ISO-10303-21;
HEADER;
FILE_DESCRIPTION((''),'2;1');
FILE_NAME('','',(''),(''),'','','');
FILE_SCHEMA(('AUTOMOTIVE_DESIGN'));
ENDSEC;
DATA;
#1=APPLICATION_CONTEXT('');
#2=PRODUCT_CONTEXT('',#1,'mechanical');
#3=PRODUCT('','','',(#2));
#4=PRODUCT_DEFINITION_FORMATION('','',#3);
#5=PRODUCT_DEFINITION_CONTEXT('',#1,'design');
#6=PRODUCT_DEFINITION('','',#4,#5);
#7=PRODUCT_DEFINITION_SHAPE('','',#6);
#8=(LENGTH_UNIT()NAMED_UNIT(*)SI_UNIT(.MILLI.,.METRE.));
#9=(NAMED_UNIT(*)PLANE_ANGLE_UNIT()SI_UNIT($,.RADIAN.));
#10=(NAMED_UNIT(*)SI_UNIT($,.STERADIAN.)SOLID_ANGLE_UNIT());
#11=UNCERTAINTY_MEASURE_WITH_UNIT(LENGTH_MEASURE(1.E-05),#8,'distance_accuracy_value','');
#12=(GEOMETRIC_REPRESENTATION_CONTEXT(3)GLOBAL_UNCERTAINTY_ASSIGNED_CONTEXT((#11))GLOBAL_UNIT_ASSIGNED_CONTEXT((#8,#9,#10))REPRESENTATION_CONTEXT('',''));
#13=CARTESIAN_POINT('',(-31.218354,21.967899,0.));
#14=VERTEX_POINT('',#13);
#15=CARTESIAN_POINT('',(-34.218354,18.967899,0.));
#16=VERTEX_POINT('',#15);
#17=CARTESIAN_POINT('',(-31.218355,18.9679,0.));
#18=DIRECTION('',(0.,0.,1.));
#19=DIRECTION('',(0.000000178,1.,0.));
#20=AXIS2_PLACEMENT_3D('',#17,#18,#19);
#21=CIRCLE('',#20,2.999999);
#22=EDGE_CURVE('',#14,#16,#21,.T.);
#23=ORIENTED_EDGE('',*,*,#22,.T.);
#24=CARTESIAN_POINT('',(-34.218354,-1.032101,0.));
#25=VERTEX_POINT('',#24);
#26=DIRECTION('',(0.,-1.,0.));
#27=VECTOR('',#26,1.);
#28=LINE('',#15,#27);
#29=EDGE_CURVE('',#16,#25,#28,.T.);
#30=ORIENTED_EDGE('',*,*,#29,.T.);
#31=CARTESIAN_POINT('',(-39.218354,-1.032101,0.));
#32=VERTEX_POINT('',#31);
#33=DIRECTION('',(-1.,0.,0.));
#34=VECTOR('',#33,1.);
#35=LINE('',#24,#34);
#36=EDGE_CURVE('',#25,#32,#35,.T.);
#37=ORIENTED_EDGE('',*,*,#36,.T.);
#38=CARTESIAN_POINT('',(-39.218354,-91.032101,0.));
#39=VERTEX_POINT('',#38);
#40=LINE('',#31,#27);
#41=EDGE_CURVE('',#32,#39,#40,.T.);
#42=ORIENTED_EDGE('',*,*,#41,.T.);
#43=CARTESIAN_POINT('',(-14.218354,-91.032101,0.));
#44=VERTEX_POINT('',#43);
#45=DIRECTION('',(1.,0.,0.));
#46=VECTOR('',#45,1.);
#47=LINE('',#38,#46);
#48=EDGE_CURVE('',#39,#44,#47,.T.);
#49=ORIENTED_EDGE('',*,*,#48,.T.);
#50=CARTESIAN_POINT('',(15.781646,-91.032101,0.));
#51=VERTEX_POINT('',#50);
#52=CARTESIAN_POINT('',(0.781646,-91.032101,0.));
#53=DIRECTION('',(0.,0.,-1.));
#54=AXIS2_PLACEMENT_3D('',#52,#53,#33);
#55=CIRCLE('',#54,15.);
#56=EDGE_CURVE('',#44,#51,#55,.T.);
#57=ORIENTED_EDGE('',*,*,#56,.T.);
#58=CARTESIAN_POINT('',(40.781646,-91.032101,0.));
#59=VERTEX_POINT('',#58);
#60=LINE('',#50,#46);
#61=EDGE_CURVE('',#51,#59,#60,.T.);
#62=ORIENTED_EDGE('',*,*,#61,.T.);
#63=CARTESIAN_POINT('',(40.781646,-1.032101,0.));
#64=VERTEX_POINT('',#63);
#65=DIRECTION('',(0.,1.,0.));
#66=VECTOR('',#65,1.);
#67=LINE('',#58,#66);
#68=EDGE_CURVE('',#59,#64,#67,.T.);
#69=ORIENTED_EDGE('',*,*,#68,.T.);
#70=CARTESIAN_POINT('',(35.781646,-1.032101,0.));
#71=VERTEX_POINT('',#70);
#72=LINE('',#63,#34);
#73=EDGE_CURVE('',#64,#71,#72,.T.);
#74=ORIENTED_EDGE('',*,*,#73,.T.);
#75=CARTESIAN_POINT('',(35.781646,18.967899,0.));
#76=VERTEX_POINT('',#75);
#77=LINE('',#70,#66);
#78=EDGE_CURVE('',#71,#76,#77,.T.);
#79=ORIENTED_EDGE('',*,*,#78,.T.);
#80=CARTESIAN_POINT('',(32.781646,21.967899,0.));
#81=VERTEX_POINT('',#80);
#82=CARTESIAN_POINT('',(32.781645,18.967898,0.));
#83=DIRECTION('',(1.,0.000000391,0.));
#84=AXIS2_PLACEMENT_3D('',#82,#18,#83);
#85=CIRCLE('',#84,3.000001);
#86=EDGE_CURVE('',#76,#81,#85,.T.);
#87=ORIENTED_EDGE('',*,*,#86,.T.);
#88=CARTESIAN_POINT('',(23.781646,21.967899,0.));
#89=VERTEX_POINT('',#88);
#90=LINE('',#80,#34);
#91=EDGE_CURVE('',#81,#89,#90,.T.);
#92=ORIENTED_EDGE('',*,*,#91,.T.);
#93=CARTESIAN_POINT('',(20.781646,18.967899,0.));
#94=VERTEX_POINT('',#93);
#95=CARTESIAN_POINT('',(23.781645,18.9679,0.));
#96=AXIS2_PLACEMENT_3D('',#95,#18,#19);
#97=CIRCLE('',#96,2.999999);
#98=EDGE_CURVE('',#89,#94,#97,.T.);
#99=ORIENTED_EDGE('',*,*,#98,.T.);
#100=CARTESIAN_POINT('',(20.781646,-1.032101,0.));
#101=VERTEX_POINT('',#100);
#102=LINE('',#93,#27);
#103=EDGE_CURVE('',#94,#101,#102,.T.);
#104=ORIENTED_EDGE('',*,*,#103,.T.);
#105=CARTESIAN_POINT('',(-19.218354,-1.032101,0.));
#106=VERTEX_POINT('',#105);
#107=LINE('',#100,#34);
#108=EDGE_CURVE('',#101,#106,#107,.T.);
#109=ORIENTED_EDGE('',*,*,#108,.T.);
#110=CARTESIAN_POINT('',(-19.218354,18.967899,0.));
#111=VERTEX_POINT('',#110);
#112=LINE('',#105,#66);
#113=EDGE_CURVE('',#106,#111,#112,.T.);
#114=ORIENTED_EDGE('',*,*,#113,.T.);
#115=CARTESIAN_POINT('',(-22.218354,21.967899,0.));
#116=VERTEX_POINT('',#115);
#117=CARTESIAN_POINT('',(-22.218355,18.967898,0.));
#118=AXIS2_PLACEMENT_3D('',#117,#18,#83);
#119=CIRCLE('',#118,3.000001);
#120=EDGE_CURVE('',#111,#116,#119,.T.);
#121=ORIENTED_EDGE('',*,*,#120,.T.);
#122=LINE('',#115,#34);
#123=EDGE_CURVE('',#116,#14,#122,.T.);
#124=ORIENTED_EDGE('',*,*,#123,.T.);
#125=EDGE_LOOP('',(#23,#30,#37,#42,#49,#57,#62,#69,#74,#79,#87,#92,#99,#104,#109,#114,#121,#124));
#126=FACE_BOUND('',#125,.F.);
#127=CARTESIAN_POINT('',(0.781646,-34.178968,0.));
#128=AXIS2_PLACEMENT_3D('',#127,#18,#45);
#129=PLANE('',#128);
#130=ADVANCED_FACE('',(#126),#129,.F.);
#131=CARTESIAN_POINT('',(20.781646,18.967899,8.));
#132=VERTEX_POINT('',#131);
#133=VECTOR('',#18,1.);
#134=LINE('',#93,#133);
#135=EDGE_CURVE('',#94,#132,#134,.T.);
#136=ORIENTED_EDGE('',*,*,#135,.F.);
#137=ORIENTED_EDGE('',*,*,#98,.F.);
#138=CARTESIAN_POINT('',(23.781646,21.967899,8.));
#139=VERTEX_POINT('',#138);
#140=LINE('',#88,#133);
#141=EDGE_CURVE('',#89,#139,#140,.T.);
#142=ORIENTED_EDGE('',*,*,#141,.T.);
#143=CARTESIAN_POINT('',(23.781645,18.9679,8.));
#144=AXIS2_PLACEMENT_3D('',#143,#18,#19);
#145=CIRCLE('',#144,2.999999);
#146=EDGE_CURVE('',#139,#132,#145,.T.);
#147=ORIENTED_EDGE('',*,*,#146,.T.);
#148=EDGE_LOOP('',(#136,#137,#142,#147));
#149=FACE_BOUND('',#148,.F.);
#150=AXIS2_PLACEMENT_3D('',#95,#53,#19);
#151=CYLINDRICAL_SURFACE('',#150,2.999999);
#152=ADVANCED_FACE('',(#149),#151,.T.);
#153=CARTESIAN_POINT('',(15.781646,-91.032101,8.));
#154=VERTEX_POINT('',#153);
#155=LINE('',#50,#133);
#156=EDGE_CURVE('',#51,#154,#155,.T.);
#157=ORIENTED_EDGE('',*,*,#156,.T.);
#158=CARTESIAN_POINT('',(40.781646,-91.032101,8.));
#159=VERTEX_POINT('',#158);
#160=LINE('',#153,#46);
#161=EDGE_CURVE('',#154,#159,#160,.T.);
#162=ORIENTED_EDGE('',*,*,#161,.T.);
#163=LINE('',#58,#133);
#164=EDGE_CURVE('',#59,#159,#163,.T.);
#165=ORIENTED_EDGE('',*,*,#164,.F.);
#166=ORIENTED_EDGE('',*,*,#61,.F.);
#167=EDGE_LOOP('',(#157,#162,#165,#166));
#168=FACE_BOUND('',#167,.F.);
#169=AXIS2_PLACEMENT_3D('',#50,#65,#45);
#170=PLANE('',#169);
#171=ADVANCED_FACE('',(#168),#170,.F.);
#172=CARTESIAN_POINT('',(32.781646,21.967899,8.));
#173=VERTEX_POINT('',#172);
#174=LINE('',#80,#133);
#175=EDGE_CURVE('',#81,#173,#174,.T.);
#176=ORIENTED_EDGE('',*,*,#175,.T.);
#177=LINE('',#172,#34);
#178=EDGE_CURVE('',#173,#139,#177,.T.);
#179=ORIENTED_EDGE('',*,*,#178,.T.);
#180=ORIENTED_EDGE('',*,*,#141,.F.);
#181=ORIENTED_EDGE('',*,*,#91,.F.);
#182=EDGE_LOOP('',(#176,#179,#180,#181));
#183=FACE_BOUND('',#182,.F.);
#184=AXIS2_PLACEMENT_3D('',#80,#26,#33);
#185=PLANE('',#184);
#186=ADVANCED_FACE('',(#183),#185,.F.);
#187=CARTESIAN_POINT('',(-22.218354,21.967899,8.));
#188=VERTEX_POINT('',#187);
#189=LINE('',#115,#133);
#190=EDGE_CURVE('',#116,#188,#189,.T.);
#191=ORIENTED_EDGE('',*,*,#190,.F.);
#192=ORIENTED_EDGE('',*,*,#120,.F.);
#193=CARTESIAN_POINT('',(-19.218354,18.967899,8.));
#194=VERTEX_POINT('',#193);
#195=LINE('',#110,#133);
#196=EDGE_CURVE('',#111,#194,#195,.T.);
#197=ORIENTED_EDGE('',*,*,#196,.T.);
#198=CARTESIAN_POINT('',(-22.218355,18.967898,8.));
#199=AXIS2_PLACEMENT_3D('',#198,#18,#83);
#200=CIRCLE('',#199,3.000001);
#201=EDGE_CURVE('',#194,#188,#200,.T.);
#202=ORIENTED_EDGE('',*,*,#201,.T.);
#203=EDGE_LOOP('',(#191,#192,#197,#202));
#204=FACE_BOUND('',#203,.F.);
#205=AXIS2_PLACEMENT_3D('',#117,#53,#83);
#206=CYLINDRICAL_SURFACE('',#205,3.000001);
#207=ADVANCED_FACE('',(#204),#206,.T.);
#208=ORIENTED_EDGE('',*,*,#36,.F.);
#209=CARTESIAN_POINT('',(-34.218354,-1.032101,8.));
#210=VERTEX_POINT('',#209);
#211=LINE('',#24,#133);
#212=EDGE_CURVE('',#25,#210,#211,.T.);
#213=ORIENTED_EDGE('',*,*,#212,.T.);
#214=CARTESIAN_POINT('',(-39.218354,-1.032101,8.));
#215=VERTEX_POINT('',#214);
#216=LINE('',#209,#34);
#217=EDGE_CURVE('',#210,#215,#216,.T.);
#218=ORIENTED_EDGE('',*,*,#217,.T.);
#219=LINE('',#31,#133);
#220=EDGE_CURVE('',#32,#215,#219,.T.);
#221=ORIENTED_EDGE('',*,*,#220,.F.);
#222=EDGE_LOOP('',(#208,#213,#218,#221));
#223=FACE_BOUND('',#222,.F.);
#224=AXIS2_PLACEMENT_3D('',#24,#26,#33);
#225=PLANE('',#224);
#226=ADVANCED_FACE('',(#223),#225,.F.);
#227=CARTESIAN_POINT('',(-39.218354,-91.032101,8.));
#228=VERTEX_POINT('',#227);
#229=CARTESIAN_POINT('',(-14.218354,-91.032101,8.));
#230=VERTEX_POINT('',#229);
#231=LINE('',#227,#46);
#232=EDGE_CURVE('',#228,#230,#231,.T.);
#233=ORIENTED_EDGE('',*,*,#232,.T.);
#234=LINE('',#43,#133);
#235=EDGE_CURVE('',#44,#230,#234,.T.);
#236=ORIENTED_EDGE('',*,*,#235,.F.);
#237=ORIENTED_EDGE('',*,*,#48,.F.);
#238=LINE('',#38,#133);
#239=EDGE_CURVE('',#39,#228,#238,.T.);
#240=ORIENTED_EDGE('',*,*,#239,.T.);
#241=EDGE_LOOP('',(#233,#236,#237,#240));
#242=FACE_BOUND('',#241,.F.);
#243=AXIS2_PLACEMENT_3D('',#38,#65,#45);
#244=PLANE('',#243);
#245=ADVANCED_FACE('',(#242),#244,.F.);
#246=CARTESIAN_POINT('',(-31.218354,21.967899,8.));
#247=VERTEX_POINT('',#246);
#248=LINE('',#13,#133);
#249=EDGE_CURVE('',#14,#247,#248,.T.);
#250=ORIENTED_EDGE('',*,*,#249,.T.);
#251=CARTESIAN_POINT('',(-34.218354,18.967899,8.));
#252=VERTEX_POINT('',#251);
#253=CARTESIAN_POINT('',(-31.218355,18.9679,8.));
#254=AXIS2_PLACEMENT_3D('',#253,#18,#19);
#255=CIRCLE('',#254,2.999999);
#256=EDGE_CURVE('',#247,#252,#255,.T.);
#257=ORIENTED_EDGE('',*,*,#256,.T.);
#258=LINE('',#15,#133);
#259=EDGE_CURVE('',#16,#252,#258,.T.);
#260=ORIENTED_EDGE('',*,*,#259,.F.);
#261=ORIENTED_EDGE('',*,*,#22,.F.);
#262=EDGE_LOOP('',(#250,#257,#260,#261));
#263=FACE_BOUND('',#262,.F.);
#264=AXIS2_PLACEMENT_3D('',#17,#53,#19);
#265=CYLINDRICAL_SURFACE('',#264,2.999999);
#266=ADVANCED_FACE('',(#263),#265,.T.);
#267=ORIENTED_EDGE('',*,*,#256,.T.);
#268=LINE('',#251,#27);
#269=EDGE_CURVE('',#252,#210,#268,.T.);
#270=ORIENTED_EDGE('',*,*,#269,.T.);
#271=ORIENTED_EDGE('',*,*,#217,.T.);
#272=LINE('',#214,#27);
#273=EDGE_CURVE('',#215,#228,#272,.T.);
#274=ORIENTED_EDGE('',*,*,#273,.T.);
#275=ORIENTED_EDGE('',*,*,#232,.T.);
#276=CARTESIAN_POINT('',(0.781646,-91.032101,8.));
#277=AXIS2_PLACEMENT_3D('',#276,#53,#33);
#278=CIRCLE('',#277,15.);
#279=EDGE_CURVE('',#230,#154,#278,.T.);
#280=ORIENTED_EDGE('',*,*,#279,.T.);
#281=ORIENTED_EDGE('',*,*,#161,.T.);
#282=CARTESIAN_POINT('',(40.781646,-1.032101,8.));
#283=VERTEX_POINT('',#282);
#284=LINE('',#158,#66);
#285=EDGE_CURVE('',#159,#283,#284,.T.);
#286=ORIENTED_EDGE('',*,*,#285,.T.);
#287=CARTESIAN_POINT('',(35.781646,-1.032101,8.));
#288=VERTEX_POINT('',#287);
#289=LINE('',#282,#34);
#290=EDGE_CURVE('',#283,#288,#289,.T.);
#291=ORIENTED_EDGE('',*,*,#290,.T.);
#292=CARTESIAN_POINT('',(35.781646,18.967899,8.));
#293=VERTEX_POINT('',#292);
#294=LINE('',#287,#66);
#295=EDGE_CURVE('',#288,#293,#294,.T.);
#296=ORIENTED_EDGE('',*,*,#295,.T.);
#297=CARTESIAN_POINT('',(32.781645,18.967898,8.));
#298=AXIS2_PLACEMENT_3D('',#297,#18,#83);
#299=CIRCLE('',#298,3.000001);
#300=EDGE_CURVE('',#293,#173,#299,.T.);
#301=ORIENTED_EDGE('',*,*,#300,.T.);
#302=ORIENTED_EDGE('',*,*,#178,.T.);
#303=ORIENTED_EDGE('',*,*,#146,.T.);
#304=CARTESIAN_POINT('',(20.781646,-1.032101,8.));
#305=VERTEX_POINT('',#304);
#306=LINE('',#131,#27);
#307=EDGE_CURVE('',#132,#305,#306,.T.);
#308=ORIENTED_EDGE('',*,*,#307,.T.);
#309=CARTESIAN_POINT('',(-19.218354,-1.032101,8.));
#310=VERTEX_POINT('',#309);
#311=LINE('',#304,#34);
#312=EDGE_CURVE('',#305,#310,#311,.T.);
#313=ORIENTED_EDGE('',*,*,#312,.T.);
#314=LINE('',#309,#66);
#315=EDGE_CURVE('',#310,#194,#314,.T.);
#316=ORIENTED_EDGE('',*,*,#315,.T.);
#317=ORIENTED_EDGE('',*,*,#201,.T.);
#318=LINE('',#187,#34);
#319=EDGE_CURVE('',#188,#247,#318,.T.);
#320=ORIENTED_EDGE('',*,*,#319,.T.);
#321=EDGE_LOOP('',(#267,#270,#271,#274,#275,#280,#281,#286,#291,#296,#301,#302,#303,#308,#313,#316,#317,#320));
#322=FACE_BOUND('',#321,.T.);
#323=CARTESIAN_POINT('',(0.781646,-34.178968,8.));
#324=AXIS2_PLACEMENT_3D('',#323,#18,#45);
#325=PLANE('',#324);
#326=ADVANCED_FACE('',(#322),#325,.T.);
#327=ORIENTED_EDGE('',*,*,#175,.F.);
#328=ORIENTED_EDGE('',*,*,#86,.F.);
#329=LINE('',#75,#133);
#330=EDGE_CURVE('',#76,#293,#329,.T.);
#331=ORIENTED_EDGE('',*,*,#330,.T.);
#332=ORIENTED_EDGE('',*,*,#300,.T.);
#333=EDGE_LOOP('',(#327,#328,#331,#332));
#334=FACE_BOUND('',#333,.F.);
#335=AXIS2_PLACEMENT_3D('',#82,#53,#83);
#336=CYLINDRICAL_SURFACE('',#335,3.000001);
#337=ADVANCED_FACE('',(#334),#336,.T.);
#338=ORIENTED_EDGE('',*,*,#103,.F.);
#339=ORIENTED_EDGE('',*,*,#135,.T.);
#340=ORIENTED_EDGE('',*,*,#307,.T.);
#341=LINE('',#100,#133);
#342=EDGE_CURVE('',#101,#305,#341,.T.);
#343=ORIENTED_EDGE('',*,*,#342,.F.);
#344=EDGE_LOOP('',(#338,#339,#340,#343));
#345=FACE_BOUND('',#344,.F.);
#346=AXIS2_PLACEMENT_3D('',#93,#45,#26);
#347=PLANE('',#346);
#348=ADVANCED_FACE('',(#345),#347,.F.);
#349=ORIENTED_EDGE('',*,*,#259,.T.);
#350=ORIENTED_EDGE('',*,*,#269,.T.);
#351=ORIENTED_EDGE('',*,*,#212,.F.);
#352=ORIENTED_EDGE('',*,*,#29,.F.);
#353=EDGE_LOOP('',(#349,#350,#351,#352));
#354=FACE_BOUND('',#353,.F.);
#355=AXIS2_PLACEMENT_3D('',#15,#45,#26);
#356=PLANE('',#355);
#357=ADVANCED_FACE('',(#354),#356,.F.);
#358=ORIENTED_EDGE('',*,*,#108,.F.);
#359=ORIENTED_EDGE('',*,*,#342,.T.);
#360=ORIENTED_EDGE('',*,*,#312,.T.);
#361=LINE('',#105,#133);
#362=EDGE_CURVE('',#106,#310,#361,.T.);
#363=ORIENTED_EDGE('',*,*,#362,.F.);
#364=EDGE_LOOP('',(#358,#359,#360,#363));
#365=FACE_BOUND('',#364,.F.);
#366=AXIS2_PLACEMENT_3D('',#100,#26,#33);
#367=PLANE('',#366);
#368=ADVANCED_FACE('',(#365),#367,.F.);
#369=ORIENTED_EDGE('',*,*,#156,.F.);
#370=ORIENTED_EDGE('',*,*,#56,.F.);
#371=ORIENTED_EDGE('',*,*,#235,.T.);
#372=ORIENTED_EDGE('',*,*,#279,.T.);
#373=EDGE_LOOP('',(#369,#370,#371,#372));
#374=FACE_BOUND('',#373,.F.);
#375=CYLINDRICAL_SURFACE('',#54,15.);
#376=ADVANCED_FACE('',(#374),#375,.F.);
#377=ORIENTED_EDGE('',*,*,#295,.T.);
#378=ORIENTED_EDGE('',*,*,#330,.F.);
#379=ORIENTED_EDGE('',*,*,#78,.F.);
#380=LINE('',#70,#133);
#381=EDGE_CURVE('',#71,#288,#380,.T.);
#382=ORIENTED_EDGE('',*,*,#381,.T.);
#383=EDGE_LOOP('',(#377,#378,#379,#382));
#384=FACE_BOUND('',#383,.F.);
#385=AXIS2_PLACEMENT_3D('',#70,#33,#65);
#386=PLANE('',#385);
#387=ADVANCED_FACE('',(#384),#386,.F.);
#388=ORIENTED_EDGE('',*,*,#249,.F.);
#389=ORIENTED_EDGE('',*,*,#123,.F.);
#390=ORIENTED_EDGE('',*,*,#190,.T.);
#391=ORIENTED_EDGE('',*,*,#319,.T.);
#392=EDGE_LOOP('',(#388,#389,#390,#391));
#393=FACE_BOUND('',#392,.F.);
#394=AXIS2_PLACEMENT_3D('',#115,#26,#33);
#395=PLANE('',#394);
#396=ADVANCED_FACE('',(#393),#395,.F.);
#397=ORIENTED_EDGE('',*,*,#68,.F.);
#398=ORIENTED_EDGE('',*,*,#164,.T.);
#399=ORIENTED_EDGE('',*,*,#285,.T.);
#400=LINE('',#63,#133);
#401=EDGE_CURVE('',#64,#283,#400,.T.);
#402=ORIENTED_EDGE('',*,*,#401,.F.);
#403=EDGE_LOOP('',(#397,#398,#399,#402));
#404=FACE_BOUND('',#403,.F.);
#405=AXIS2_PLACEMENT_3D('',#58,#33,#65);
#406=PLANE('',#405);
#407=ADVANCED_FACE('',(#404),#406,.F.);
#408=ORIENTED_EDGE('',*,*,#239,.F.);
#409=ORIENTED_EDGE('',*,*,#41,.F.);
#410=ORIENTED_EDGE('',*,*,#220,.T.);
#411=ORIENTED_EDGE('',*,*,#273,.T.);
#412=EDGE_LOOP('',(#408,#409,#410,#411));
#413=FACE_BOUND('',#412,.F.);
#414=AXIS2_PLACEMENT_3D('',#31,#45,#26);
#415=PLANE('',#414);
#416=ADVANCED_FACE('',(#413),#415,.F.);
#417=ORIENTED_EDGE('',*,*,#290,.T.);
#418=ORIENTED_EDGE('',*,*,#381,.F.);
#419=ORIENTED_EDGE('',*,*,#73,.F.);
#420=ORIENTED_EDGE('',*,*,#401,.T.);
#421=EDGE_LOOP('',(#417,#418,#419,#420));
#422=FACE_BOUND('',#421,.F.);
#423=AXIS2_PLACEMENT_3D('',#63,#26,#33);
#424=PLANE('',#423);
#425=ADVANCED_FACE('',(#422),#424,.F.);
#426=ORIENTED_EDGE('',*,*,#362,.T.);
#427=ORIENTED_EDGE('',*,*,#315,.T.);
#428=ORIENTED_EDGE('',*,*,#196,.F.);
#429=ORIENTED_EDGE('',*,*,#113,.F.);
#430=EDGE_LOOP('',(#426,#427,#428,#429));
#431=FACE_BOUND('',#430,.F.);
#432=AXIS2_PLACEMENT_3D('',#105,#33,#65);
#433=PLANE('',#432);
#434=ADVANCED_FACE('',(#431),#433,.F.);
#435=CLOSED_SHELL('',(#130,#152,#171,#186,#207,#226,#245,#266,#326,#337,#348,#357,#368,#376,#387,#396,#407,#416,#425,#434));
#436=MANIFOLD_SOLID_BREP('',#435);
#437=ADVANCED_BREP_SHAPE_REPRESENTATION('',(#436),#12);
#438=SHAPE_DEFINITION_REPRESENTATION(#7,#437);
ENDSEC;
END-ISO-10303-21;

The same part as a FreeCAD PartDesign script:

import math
import FreeCAD as App
import Part
import Sketcher
from FreeCAD import Vector

doc = App.newDocument("Part")
body = doc.addObject("PartDesign::Body", "Body")

# Sketch on XY plane
sketch1 = doc.addObject("Sketcher::SketchObject", "Sketch")
body.addObject(sketch1)
sketch1.AttachmentSupport = (doc.XY_Plane, [""])
sketch1.MapMode = "FlatFace"
sketch1.addGeometry([
    Part.LineSegment(Vector(-34.218354, -1.032101, 0), Vector(-39.218354, -1.032101, 0)),  # 0
    Part.LineSegment(Vector(-39.218354, -1.032101, 0), Vector(-39.218354, -91.032101, 0)),  # 1
    Part.LineSegment(Vector(-39.218354, -91.032101, 0), Vector(-14.218354, -91.032101, 0)),  # 2
    Part.ArcOfCircle(Part.Circle(Vector(0.781646, -91.032101, 0), Vector(0, 0, 1), 15), math.radians(0), math.radians(180)),  # 3
    Part.LineSegment(Vector(15.781646, -91.032101, 0), Vector(40.781646, -91.032101, 0)),  # 4
    Part.LineSegment(Vector(40.781646, -91.032101, 0), Vector(40.781646, -1.032101, 0)),  # 5
    Part.LineSegment(Vector(40.781646, -1.032101, 0), Vector(35.781646, -1.032101, 0)),  # 6
    Part.LineSegment(Vector(35.781646, -1.032101, 0), Vector(35.781646, 18.967899, 0)),  # 7
    Part.ArcOfCircle(Part.Circle(Vector(32.781645, 18.967898, 0), Vector(0, 0, 1), 3.000001), math.radians(0.000022), math.radians(89.999978)),  # 8
    Part.LineSegment(Vector(32.781646, 21.967899, 0), Vector(23.781646, 21.967899, 0)),  # 9
    Part.ArcOfCircle(Part.Circle(Vector(23.781645, 18.9679, 0), Vector(0, 0, 1), 2.999999), math.radians(89.99999), math.radians(180.00001)),  # 10
    Part.LineSegment(Vector(20.781646, 18.967899, 0), Vector(20.781646, -1.032101, 0)),  # 11
    Part.LineSegment(Vector(20.781646, -1.032101, 0), Vector(-19.218354, -1.032101, 0)),  # 12
    Part.LineSegment(Vector(-19.218354, -1.032101, 0), Vector(-19.218354, 18.967899, 0)),  # 13
    Part.ArcOfCircle(Part.Circle(Vector(-22.218355, 18.967898, 0), Vector(0, 0, 1), 3.000001), math.radians(0.000022), math.radians(89.999978)),  # 14
    Part.LineSegment(Vector(-22.218354, 21.967899, 0), Vector(-31.218354, 21.967899, 0)),  # 15
    Part.ArcOfCircle(Part.Circle(Vector(-31.218355, 18.9679, 0), Vector(0, 0, 1), 2.999999), math.radians(89.99999), math.radians(180.00001)),  # 16
    Part.LineSegment(Vector(-34.218354, 18.967899, 0), Vector(-34.218354, -1.032101, 0)),  # 17
], False)
sketch1.addConstraint([
    Sketcher.Constraint("Coincident", 0, 2, 1, 1),
    Sketcher.Constraint("Coincident", 1, 2, 2, 1),
    Sketcher.Constraint("Coincident", 2, 2, 3, 2),
    Sketcher.Constraint("Coincident", 3, 1, 4, 1),
    Sketcher.Constraint("Coincident", 4, 2, 5, 1),
    Sketcher.Constraint("Coincident", 5, 2, 6, 1),
    Sketcher.Constraint("Coincident", 6, 2, 7, 1),
    Sketcher.Constraint("Tangent", 7, 2, 8, 1),
    Sketcher.Constraint("Tangent", 8, 2, 9, 1),
    Sketcher.Constraint("Tangent", 9, 2, 10, 1),
    Sketcher.Constraint("Tangent", 10, 2, 11, 1),
    Sketcher.Constraint("Coincident", 11, 2, 12, 1),
    Sketcher.Constraint("Coincident", 12, 2, 13, 1),
    Sketcher.Constraint("Tangent", 13, 2, 14, 1),
    Sketcher.Constraint("Tangent", 14, 2, 15, 1),
    Sketcher.Constraint("Tangent", 15, 2, 16, 1),
    Sketcher.Constraint("Tangent", 16, 2, 17, 1),
    Sketcher.Constraint("Coincident", 17, 2, 0, 1),
    Sketcher.Constraint("Horizontal", 0),
    Sketcher.Constraint("Vertical", 1),
    Sketcher.Constraint("Horizontal", 2),
    Sketcher.Constraint("Horizontal", 4),
    Sketcher.Constraint("Vertical", 5),
    Sketcher.Constraint("Horizontal", 6),
    Sketcher.Constraint("Vertical", 7),
    Sketcher.Constraint("Horizontal", 9),
    Sketcher.Constraint("Vertical", 11),
    Sketcher.Constraint("Horizontal", 12),
    Sketcher.Constraint("Vertical", 13),
    Sketcher.Constraint("Horizontal", 15),
    Sketcher.Constraint("Vertical", 17),
    Sketcher.Constraint("Equal", 8, 10),
    Sketcher.Constraint("Equal", 10, 14),
    Sketcher.Constraint("Equal", 14, 16),
    Sketcher.Constraint("Horizontal", 10, 3, 14, 3),
    Sketcher.Constraint("Horizontal", 3, 3, 1, 2),
    Sketcher.Constraint("Horizontal", 2, 2, 3, 1),
    Sketcher.Constraint("Horizontal", 0, 2, 5, 2),
    Sketcher.Constraint("Horizontal", 6, 2, 11, 2),
    Sketcher.Constraint("Equal", 2, 4),
    Sketcher.Constraint("Equal", 0, 6),
    Sketcher.Constraint("Equal", 9, 15),
    Sketcher.Constraint("Radius", 3, 15.0),
    Sketcher.Constraint("Radius", 8, 3.000001),
    Sketcher.Constraint("DistanceX", 0, 2, 0, 1, 5.0),
    Sketcher.Constraint("DistanceX", 2, 1, 2, 2, 25.0),
    Sketcher.Constraint("DistanceX", 9, 2, 9, 1, 9.0),
    Sketcher.Constraint("DistanceY", 1, 2, 1, 1, 90.0),
    Sketcher.Constraint("DistanceY", 7, 1, 7, 2, 20.0),
    Sketcher.Constraint("DistanceY", 3, 3, -1, 1, 91.032101),
    Sketcher.Constraint("DistanceX", -1, 1, 3, 3, 0.781646),
])
pad1 = doc.addObject("PartDesign::Pad", "Pad")
body.addObject(pad1)
pad1.Profile = sketch1
pad1.Length = 8

doc.recompute()
